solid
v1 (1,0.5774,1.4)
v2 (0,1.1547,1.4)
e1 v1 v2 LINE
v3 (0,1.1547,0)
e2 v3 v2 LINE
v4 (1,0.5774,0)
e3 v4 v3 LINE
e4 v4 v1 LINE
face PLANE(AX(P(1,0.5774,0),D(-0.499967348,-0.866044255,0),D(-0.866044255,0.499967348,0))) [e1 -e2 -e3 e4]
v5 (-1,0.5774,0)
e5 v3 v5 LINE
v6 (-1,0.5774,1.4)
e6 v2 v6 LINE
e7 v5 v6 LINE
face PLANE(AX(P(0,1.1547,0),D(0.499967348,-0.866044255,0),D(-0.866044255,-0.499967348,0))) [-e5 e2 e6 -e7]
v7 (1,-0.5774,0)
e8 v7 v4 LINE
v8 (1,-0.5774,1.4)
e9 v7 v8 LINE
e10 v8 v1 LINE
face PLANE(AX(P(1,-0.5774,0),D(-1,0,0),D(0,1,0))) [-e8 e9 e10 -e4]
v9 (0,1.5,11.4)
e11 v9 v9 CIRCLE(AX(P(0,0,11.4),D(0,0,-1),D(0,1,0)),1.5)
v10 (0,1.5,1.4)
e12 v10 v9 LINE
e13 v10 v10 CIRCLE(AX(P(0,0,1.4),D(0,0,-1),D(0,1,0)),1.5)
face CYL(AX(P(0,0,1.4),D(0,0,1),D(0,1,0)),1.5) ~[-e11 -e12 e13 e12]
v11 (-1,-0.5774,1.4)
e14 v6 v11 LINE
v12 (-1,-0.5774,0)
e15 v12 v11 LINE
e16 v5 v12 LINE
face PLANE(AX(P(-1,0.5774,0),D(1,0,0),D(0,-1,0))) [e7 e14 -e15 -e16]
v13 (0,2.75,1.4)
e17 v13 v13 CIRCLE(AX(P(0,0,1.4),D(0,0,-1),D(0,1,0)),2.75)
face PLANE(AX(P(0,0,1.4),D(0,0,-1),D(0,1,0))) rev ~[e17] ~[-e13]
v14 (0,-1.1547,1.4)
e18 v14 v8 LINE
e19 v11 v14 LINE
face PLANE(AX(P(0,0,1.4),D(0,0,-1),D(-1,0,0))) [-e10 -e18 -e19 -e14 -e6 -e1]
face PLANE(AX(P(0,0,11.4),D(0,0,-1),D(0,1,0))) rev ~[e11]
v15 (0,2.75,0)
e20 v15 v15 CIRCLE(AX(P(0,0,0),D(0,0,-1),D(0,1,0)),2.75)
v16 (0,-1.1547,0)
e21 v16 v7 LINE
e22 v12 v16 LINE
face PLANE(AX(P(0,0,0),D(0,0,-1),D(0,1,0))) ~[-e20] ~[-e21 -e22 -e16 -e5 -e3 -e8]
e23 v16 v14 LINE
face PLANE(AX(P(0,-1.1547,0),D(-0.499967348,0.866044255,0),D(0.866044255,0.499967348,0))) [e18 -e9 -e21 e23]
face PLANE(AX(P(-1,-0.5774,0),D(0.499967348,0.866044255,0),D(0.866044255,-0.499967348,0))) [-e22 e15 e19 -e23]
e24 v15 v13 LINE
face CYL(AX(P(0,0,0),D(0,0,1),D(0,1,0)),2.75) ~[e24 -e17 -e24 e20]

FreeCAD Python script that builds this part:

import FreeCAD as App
import Part
import Sketcher

V = App.Vector

doc = App.newDocument("Part")
params = doc.addObject("Spreadsheet::Sheet", "Params")
for row, (alias, value) in enumerate([
    ("sketch1_height", "10 mm"),
    ("sketch1_width", "1.5 mm"),
    ("sketch1_height2", "1.4 mm"),
    ("sketch1_width2", "2.75 mm"),
    ("revolution_angle", "360 deg"),
    ("pocket1_length", "1.4 mm"),
], start=1):
    params.set(f"A{row}", alias)
    params.set(f"B{row}", "=" + value)
    params.setAlias(f"B{row}", alias)

body = doc.addObject("PartDesign::Body", "Body")

sketch1 = body.newObject("Sketcher::SketchObject", "Sketch")
sketch1.AttachmentSupport = (doc.getObject("YZ_Plane"), [""])
sketch1.MapMode = "FlatFace"
sketch1.addGeometry(Part.LineSegment(V(1.5, 11.4, 0), V(0, 11.4, 0)), False)
sketch1.addGeometry(Part.LineSegment(V(0, 11.4, 0), V(0, 0, 0)), False)
sketch1.addGeometry(Part.LineSegment(V(0, 0, 0), V(2.8, 0, 0)), False)
sketch1.addGeometry(Part.LineSegment(V(2.8, 0, 0), V(2.8, 1.4, 0)), False)
sketch1.addGeometry(Part.LineSegment(V(2.8, 1.4, 0), V(1.5, 1.4, 0)), False)
sketch1.addGeometry(Part.LineSegment(V(1.5, 1.4, 0), V(1.5, 11.4, 0)), False)
sketch1.addConstraint(Sketcher.Constraint("Coincident", 0, 2, 1, 1))
sketch1.addConstraint(Sketcher.Constraint("Coincident", 1, 2, 2, 1))
sketch1.addConstraint(Sketcher.Constraint("Coincident", 2, 2, 3, 1))
sketch1.addConstraint(Sketcher.Constraint("Coincident", 3, 2, 4, 1))
sketch1.addConstraint(Sketcher.Constraint("Coincident", 4, 2, 5, 1))
sketch1.addConstraint(Sketcher.Constraint("Coincident", 5, 2, 0, 1))
sketch1.addConstraint(Sketcher.Constraint("Horizontal", 0))
sketch1.addConstraint(Sketcher.Constraint("Vertical", 1))
sketch1.addConstraint(Sketcher.Constraint("Horizontal", 2))
sketch1.addConstraint(Sketcher.Constraint("Vertical", 3))
sketch1.addConstraint(Sketcher.Constraint("Horizontal", 4))
sketch1.addConstraint(Sketcher.Constraint("Vertical", 5))
sketch1.addConstraint(Sketcher.Constraint("Coincident", 1, 2, -1, 1))
sketch1.addConstraint(Sketcher.Constraint("DistanceY", 5, 1, 5, 2, 10.0))
sketch1.addConstraint(Sketcher.Constraint("DistanceX", 0, 2, 0, 1, 1.5))
sketch1.addConstraint(Sketcher.Constraint("DistanceY", 3, 1, 3, 2, 1.4))
sketch1.addConstraint(Sketcher.Constraint("DistanceX", 2, 1, 2, 2, 2.75))
sketch1.setExpression("Constraints[13]", "Params.sketch1_height")
sketch1.setExpression("Constraints[14]", "Params.sketch1_width")
sketch1.setExpression("Constraints[15]", "Params.sketch1_height2")
sketch1.setExpression("Constraints[16]", "Params.sketch1_width2")
revolution = body.newObject("PartDesign::Revolution", "Revolution")
revolution.Profile = sketch1
revolution.ReferenceAxis = (sketch1, ["V_Axis"])
revolution.setExpression("Angle", "Params.revolution_angle")

sketch2 = body.newObject("Sketcher::SketchObject", "Sketch001")
sketch2.AttachmentSupport = (doc.getObject("XY_Plane"), [""])
sketch2.MapMode = "FlatFace"
sketch2.addGeometry(Part.LineSegment(V(-1, 0.6, 0), V(0, 1.2, 0)), False)
sketch2.addGeometry(Part.LineSegment(V(0, 1.2, 0), V(1, 0.6, 0)), False)
sketch2.addGeometry(Part.LineSegment(V(1, 0.6, 0), V(1, -0.6, 0)), False)
sketch2.addGeometry(Part.LineSegment(V(1, -0.6, 0), V(0, -1.2, 0)), False)
sketch2.addGeometry(Part.LineSegment(V(0, -1.2, 0), V(-1, -0.6, 0)), False)
sketch2.addGeometry(Part.LineSegment(V(-1, -0.6, 0), V(-1, 0.6, 0)), False)
sketch2.addConstraint(Sketcher.Constraint("Coincident", 0, 2, 1, 1))
sketch2.addConstraint(Sketcher.Constraint("Coincident", 1, 2, 2, 1))
sketch2.addConstraint(Sketcher.Constraint("Coincident", 2, 2, 3, 1))
sketch2.addConstraint(Sketcher.Constraint("Coincident", 3, 2, 4, 1))
sketch2.addConstraint(Sketcher.Constraint("Coincident", 4, 2, 5, 1))
sketch2.addConstraint(Sketcher.Constraint("Coincident", 5, 2, 0, 1))
sketch2.addConstraint(Sketcher.Constraint("Vertical", 2))
sketch2.addConstraint(Sketcher.Constraint("Vertical", 5))
sketch2.addConstraint(Sketcher.Constraint("Symmetric", 0, 2, 3, 2, -1, 1))
sketch2.addConstraint(Sketcher.Constraint("Symmetric", 1, 2, 4, 2, -1, 1))
sketch2.addConstraint(Sketcher.Constraint("PointOnObject", 0, 2, -2))
sketch2.addConstraint(Sketcher.Constraint("Parallel", 0, 3))
sketch2.addConstraint(Sketcher.Constraint("Horizontal", 2, 2, 4, 2))
sketch2.addConstraint(Sketcher.Constraint("DistanceX", 4, 2, 2, 2, 2.0))
sketch2.addConstraint(Sketcher.Constraint("DistanceY", 2, 2, 2, 1, 1.1548))
sketch2.addConstraint(Sketcher.Constraint("DistanceY", 2, 2, 0, 2, 1.732))
pocket1 = body.newObject("PartDesign::Pocket", "Pocket")
pocket1.Profile = sketch2
pocket1.setExpression("Length", "Params.pocket1_length")
pocket1.Reversed = True

doc.recompute()
